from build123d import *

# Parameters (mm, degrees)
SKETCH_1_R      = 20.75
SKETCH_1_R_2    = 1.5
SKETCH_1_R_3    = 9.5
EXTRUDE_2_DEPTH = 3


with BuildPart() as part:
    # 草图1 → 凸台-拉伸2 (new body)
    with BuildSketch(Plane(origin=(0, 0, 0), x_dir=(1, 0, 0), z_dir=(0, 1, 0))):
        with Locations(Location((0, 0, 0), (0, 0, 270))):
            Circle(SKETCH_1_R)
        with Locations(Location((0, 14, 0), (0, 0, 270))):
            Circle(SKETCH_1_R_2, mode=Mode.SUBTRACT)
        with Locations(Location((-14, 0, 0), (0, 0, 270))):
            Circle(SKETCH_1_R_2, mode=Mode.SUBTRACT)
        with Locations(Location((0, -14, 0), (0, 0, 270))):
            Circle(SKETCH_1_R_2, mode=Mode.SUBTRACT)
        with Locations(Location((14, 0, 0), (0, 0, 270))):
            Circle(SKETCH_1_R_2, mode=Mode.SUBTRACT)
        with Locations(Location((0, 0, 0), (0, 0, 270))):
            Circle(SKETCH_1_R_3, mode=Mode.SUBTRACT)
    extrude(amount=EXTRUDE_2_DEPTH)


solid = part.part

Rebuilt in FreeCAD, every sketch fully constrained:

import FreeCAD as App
import Part
import Sketcher
from FreeCAD import Vector

doc = App.newDocument("Part")
params = doc.addObject("Spreadsheet::Sheet", "Params")
for row, (alias, value) in enumerate([
    ("sketch1_diameter", "3 mm"),
    ("sketch1_diameter2", "19 mm"),
    ("sketch1_diameter3", "41.5 mm"),
    ("pad1_length", "3 mm"),
], start=1):
    params.set(f"A{row}", alias)
    params.set(f"B{row}", "=" + value)
    params.setAlias(f"B{row}", alias)

body = doc.addObject("PartDesign::Body", "Body")

# Sketch on XZ plane
sketch1 = body.newObject("Sketcher::SketchObject", "Sketch")
sketch1.AttachmentSupport = (doc.getObject("XZ_Plane"), [""])
sketch1.MapMode = "FlatFace"
sketch1.addGeometry([
    Part.Circle(Vector(0, 0, 0), Vector(0, 0, 1), 20.8),  # 0
    Part.Circle(Vector(0, -14, 0), Vector(0, 0, 1), 1.5),  # 1
    Part.Circle(Vector(-14, 0, 0), Vector(0, 0, 1), 1.5),  # 2
    Part.Circle(Vector(14, 0, 0), Vector(0, 0, 1), 1.5),  # 3
    Part.Circle(Vector(0, 0, 0), Vector(0, 0, 1), 9.5),  # 4
    Part.Circle(Vector(0, 14, 0), Vector(0, 0, 1), 1.5),  # 5
], False)
sketch1.addConstraint([
    Sketcher.Constraint("Coincident", 0, 3, -1, 1),
    Sketcher.Constraint("Coincident", 4, 3, -1, 1),
    Sketcher.Constraint("Equal", 1, 2),
    Sketcher.Constraint("Equal", 2, 3),
    Sketcher.Constraint("Equal", 3, 5),
    Sketcher.Constraint("Symmetric", 2, 3, 3, 3, -1, 1),
    Sketcher.Constraint("Symmetric", 1, 3, 5, 3, -1, 1),
    Sketcher.Constraint("PointOnObject", 1, 3, -2),
    Sketcher.Constraint("PointOnObject", 2, 3, -1),
    Sketcher.Constraint("Diameter", 1, 3.0),
    Sketcher.Constraint("Diameter", 4, 19.0),
    Sketcher.Constraint("Diameter", 0, 41.5),
    Sketcher.Constraint("DistanceY", 1, 3, -1, 1, 14.0),
    Sketcher.Constraint("DistanceX", 2, 3, -1, 1, 14.0),
])
sketch1.setExpression("Constraints[9]", "Params.sketch1_diameter")
sketch1.setExpression("Constraints[10]", "Params.sketch1_diameter2")
sketch1.setExpression("Constraints[11]", "Params.sketch1_diameter3")
pad1 = body.newObject("PartDesign::Pad", "Pad")
pad1.Profile = sketch1
pad1.setExpression("Length", "Params.pad1_length")
pad1.Reversed = True

doc.recompute()
